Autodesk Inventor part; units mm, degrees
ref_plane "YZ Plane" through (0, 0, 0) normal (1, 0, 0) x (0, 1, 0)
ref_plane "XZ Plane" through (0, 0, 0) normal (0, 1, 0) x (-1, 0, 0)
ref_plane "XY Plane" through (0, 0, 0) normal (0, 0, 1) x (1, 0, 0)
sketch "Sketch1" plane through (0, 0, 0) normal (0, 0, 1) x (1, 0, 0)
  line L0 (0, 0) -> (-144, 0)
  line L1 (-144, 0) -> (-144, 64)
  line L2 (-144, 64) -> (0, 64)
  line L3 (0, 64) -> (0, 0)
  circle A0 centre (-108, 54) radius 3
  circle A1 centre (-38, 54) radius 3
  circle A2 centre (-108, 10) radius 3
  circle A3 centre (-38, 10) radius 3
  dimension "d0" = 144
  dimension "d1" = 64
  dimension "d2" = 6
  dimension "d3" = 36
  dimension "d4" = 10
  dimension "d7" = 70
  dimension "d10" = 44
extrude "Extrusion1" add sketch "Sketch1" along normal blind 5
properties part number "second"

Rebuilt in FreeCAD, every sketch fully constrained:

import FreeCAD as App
import Part
import Sketcher
Q = App.Units.Quantity


def add_polygon(sketch, points):
    """Adds a closed chain of lines whose ends are joined by coincident constraints."""
    first, n = sketch.GeometryCount, len(points)
    for a, b in zip(points, points[1:] + points[:1]):
        sketch.addGeometry(Part.LineSegment(App.Vector(*a, 0), App.Vector(*b, 0)), False)
    for i in range(n):
        sketch.addConstraint(Sketcher.Constraint("Coincident", first + i, 2, first + (i + 1) % n, 1))

doc = App.newDocument("Part")
body = doc.addObject("PartDesign::Body", "Body")

sketch1 = doc.addObject("Sketcher::SketchObject", "Sketch")
body.addObject(sketch1)
sketch1.AttachmentSupport = (doc.XY_Plane, [""])
sketch1.MapMode = "FlatFace"
add_polygon(sketch1, [(-144, 0), (0, 0), (0, 64), (-144, 64)])
sketch1.addGeometry(Part.Circle(App.Vector(-108, 10, 0), App.Vector(0, 0, 1), 3), False)
sketch1.addGeometry(Part.Circle(App.Vector(-38, 10, 0), App.Vector(0, 0, 1), 3), False)
sketch1.addGeometry(Part.Circle(App.Vector(-108, 54, 0), App.Vector(0, 0, 1), 3), False)
sketch1.addGeometry(Part.Circle(App.Vector(-38, 54, 0), App.Vector(0, 0, 1), 3), False)
sketch1.addConstraint(Sketcher.Constraint("Horizontal", 0))
sketch1.addConstraint(Sketcher.Constraint("Vertical", 1))
sketch1.addConstraint(Sketcher.Constraint("Horizontal", 2))
sketch1.addConstraint(Sketcher.Constraint("Vertical", 3))
sketch1.addConstraint(Sketcher.Constraint("Coincident", 0, 2, -1, 1))
sketch1.addConstraint(Sketcher.Constraint("Equal", 4, 5))
sketch1.addConstraint(Sketcher.Constraint("Equal", 5, 6))
sketch1.addConstraint(Sketcher.Constraint("Equal", 6, 7))
sketch1.addConstraint(Sketcher.Constraint("Horizontal", 4, 3, 5, 3))
sketch1.addConstraint(Sketcher.Constraint("Horizontal", 6, 3, 7, 3))
sketch1.addConstraint(Sketcher.Constraint("Vertical", 4, 3, 6, 3))
sketch1.addConstraint(Sketcher.Constraint("Vertical", 5, 3, 7, 3))
sketch1.addConstraint(Sketcher.Constraint("Diameter", 4, Q("6 mm")))
sketch1.addConstraint(Sketcher.Constraint("DistanceX", 0, 1, 0, 2, Q("144 mm")))
sketch1.addConstraint(Sketcher.Constraint("DistanceY", 1, 1, 1, 2, Q("64 mm")))
sketch1.addConstraint(Sketcher.Constraint("DistanceY", -1, 1, 4, 3, Q("10 mm")))
sketch1.addConstraint(Sketcher.Constraint("DistanceX", 4, 3, 5, 3, Q("70 mm")))
sketch1.addConstraint(Sketcher.Constraint("DistanceY", 4, 3, 6, 3, Q("44 mm")))
sketch1.addConstraint(Sketcher.Constraint("DistanceX", 2, 2, 6, 3, Q("36 mm")))
pad1 = doc.addObject("PartDesign::Pad", "Pad")
body.addObject(pad1)
pad1.Profile = sketch1
pad1.Length = 5

doc.recompute()
